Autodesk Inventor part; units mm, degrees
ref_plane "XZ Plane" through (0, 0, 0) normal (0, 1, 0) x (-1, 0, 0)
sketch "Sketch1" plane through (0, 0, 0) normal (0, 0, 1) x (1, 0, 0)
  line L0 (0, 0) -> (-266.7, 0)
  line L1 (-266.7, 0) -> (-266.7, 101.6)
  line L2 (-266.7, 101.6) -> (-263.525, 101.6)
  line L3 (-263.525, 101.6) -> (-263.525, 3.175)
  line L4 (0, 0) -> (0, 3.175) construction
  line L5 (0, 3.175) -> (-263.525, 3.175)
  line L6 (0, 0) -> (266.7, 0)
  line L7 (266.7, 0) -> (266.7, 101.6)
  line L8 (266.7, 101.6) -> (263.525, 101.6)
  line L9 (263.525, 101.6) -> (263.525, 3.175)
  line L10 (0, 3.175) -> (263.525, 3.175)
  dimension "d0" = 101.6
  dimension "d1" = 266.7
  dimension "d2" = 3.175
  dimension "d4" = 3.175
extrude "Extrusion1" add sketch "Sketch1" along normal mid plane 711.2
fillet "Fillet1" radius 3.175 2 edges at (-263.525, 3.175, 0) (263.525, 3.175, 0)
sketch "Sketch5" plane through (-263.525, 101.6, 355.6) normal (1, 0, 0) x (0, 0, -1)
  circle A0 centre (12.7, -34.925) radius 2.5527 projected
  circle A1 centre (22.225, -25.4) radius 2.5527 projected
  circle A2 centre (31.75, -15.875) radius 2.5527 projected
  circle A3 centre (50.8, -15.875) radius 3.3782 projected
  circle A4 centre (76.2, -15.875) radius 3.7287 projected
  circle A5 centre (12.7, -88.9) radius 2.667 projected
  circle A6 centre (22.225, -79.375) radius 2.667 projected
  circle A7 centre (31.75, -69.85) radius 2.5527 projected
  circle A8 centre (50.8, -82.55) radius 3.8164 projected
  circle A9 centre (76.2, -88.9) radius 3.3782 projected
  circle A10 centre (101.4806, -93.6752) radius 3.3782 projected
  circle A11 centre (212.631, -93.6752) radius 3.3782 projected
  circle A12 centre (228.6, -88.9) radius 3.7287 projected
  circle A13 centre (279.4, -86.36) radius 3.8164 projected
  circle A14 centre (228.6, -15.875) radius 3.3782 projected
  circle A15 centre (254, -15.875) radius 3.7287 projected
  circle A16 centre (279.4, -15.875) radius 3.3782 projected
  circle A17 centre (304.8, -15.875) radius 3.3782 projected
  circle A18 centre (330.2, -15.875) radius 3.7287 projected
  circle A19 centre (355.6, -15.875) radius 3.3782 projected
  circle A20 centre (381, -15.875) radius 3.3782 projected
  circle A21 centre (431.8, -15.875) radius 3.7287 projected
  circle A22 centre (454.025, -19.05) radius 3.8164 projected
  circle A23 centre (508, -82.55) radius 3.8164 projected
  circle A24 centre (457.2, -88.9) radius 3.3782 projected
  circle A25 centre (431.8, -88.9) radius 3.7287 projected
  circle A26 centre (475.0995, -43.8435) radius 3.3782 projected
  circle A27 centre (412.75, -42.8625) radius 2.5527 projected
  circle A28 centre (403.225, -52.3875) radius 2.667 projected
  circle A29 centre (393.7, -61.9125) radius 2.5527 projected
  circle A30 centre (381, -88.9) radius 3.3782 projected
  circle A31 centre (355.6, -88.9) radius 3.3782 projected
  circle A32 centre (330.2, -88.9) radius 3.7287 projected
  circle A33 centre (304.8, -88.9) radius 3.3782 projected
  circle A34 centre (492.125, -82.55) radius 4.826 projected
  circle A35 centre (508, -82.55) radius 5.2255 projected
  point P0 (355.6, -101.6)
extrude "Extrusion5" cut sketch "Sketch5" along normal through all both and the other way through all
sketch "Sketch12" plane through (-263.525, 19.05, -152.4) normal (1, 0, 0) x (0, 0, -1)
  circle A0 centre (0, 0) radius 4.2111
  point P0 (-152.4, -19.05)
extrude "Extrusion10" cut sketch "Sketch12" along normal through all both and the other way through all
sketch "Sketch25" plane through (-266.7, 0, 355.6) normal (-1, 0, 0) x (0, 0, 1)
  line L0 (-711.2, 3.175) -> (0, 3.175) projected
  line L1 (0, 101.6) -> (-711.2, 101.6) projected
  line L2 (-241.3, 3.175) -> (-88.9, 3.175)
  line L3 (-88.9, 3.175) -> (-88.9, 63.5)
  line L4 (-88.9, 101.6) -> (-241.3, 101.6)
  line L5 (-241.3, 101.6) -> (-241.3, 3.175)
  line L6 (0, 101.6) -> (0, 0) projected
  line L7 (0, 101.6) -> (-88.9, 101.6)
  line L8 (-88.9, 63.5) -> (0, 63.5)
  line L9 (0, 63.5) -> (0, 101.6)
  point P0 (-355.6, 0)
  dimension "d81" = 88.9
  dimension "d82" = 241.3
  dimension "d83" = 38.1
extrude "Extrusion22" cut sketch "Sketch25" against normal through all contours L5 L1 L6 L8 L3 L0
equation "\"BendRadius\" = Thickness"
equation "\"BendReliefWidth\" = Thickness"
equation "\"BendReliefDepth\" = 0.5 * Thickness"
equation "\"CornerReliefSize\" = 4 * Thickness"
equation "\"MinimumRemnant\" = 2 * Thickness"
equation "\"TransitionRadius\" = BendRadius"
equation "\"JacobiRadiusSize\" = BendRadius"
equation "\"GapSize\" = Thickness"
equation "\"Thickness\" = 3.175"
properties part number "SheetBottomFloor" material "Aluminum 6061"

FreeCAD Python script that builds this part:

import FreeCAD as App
import Part
import Sketcher

V = App.Vector
Q = App.Units.Quantity


def edges_at(feature, points):
    """Names of the edges that pass closest to the given points."""
    edges = feature.Shape.Edges
    near = lambda p: min(range(len(edges)), key=lambda i: edges[i].distToShape(Part.Vertex(*p))[0])
    return sorted({f"Edge{near(p) + 1}" for p in points})


def add_polygon(sketch, points):
    """Adds a closed chain of lines whose ends are joined by coincident constraints."""
    first, n = sketch.GeometryCount, len(points)
    for a, b in zip(points, points[1:] + points[:1]):
        sketch.addGeometry(Part.LineSegment(App.Vector(*a, 0), App.Vector(*b, 0)), False)
    for i in range(n):
        sketch.addConstraint(Sketcher.Constraint("Coincident", first + i, 2, first + (i + 1) % n, 1))

doc = App.newDocument("Part")
params = doc.addObject("Spreadsheet::Sheet", "Params")
for row, (alias, value) in enumerate([
    ("sketch1_height", "4 in"),
    ("sketch1_width", "0.125 in"),
    ("pad1_length", "28 in"),
    ("fillet_radius", "0.125 in"),
    ("sketch2_diameter", "0.21 in"),
    ("sketch2_diameter2", "0.38 in"),
    ("sketch2_diameter3", "0.201 in"),
    ("sketch2_diameter4", "0.266 in"),
    ("sketch4_width", "1.5 in"),
    ("sketch4_height", "3.5 in"),
    ("sketch4_height2", "9.5 in"),
    ("sketch4_width2", "3.875 in"),
], start=1):
    params.set(f"A{row}", alias)
    params.set(f"B{row}", "=" + value)
    params.setAlias(f"B{row}", alias)

body = doc.addObject("PartDesign::Body", "Body")
body.AllowCompound = True

sketch1 = doc.addObject("Sketcher::SketchObject", "Sketch")
body.addObject(sketch1)
sketch1.AttachmentSupport = (doc.XY_Plane, [""])
sketch1.MapMode = "FlatFace"
add_polygon(sketch1, [(-266.7, 0), (266.7, 0), (266.7, 101.6), (263.5, 101.6), (263.5, 3.2), (-263.5, 3.2), (-263.5, 101.6), (-266.7, 101.6)])
sketch1.addConstraint([
    Sketcher.Constraint("Horizontal", 0),
    Sketcher.Constraint("Vertical", 1),
    Sketcher.Constraint("Horizontal", 2),
    Sketcher.Constraint("Vertical", 3),
    Sketcher.Constraint("Horizontal", 4),
    Sketcher.Constraint("Vertical", 5),
    Sketcher.Constraint("Horizontal", 6),
    Sketcher.Constraint("Vertical", 7),
    Sketcher.Constraint("Symmetric", 0, 2, 7, 2, -1, 1),
    Sketcher.Constraint("Symmetric", 2, 2, 5, 2, -2),
    Sketcher.Constraint("DistanceY", 1, 1, 1, 2, Q("4 in")),
    Sketcher.Constraint("DistanceX", -1, 1, 0, 2, Q("10.5 in")),
    Sketcher.Constraint("DistanceX", 2, 2, 2, 1, Q("0.125 in")),
    Sketcher.Constraint("DistanceY", -1, 1, 3, 2, Q("0.125 in")),
])
sketch1.setExpression("Constraints[18]", "Params.sketch1_height")
sketch1.setExpression("Constraints[20]", "Params.sketch1_width")
pad1 = doc.addObject("PartDesign::Pad", "Pad")
body.addObject(pad1)
pad1.Profile = sketch1
pad1.setExpression("Length", "Params.pad1_length")
pad1.Midplane = True
doc.recompute()

fillet = doc.addObject("PartDesign::Fillet", "Fillet")
body.addObject(fillet)
fillet.Base = (pad1, edges_at(pad1, [(-263.525, 3.175, 0), (263.525, 3.175, 0)]))
fillet.setExpression("Radius", "Params.fillet_radius")

sketch2 = doc.addObject("Sketcher::SketchObject", "Sketch001")
body.addObject(sketch2)
sketch2.AttachmentSupport = (doc.YZ_Plane, [""])
sketch2.MapMode = "FlatFace"
sketch2.AttachmentOffset = App.Placement(V(0, 0, -10.375 * 25.4), App.Rotation())
sketch2.addGeometry([
    Part.Circle(V(66.7, 342.9, 0), V(0, 0, 1), 2.6),
    Part.Circle(V(76.2, 333.4, 0), V(0, 0, 1), 2.6),
    Part.Circle(V(85.7, 323.9, 0), V(0, 0, 1), 2.6),
    Part.Circle(V(85.7, 304.8, 0), V(0, 0, 1), 3.4),
    Part.Circle(V(85.7, 279.4, 0), V(0, 0, 1), 3.7),
    Part.Circle(V(12.7, 342.9, 0), V(0, 0, 1), 2.7),
    Part.Circle(V(22.2, 333.4, 0), V(0, 0, 1), 2.7),
    Part.Circle(V(31.8, 323.9, 0), V(0, 0, 1), 2.6),
    Part.Circle(V(19.1, 304.8, 0), V(0, 0, 1), 3.8),
    Part.Circle(V(12.7, 279.4, 0), V(0, 0, 1), 3.4),
    Part.Circle(V(7.9, 254.1, 0), V(0, 0, 1), 3.4),
    Part.Circle(V(7.9, 143, 0), V(0, 0, 1), 3.4),
    Part.Circle(V(12.7, 127, 0), V(0, 0, 1), 3.7),
    Part.Circle(V(15.2, 76.2, 0), V(0, 0, 1), 3.8),
    Part.Circle(V(85.7, 127, 0), V(0, 0, 1), 3.4),
    Part.Circle(V(85.7, 101.6, 0), V(0, 0, 1), 3.7),
    Part.Circle(V(85.7, 76.2, 0), V(0, 0, 1), 3.4),
    Part.Circle(V(85.7, 50.8, 0), V(0, 0, 1), 3.4),
    Part.Circle(V(85.7, 25.4, 0), V(0, 0, 1), 3.7),
    Part.Circle(V(85.7, 0, 0), V(0, 0, 1), 3.4),
    Part.Circle(V(85.7, -25.4, 0), V(0, 0, 1), 3.4),
    Part.Circle(V(85.7, -76.2, 0), V(0, 0, 1), 3.7),
    Part.Circle(V(82.5, -98.4, 0), V(0, 0, 1), 3.8),
    Part.Circle(V(12.7, -101.6, 0), V(0, 0, 1), 3.4),
    Part.Circle(V(12.7, -76.2, 0), V(0, 0, 1), 3.7),
    Part.Circle(V(57.8, -119.5, 0), V(0, 0, 1), 3.4),
    Part.Circle(V(58.7, -57.1, 0), V(0, 0, 1), 2.6),
    Part.Circle(V(49.2, -47.6, 0), V(0, 0, 1), 2.7),
    Part.Circle(V(39.7, -38.1, 0), V(0, 0, 1), 2.6),
    Part.Circle(V(12.7, -25.4, 0), V(0, 0, 1), 3.4),
    Part.Circle(V(12.7, 0, 0), V(0, 0, 1), 3.4),
    Part.Circle(V(12.7, 25.4, 0), V(0, 0, 1), 3.7),
    Part.Circle(V(12.7, 50.8, 0), V(0, 0, 1), 3.4),
    Part.Circle(V(19.1, -136.5, 0), V(0, 0, 1), 4.8),
    Part.Circle(V(19.1, -152.4, 0), V(0, 0, 1), 5.2),
    Part.Circle(V(19.1, -152.4, 0), V(0, 0, 1), 3.8),
], False)
sketch2.addConstraint([
    Sketcher.Constraint("Coincident", 35, 3, 34, 3),
    Sketcher.Constraint("Equal", 0, 1),
    Sketcher.Constraint("Equal", 1, 2),
    Sketcher.Constraint("Equal", 5, 6),
    Sketcher.Constraint("Equal", 2, 7),
    Sketcher.Constraint("Equal", 3, 9),
    Sketcher.Constraint("Equal", 9, 10),
    Sketcher.Constraint("Equal", 10, 11),
    Sketcher.Constraint("Equal", 4, 12),
    Sketcher.Constraint("Equal", 8, 13),
    Sketcher.Constraint("Equal", 11, 14),
    Sketcher.Constraint("Equal", 12, 15),
    Sketcher.Constraint("Equal", 14, 16),
    Sketcher.Constraint("Equal", 16, 17),
    Sketcher.Constraint("Equal", 15, 18),
    Sketcher.Constraint("Equal", 17, 19),
    Sketcher.Constraint("Equal", 19, 20),
    Sketcher.Constraint("Equal", 18, 21),
    Sketcher.Constraint("Equal", 13, 22),
    Sketcher.Constraint("Equal", 20, 23),
    Sketcher.Constraint("Equal", 21, 24),
    Sketcher.Constraint("Equal", 23, 25),
    Sketcher.Constraint("Equal", 7, 26),
    Sketcher.Constraint("Equal", 6, 27),
    Sketcher.Constraint("Equal", 26, 28),
    Sketcher.Constraint("Equal", 25, 29),
    Sketcher.Constraint("Equal", 29, 30),
    Sketcher.Constraint("Equal", 24, 31),
    Sketcher.Constraint("Equal", 30, 32),
    Sketcher.Constraint("Equal", 22, 35),
    Sketcher.Constraint("Symmetric", 18, 3, 20, 3, -1),
    Sketcher.Constraint("Symmetric", 16, 3, 21, 3, -1),
    Sketcher.Constraint("Symmetric", 29, 3, 31, 3, -1),
    Sketcher.Constraint("PointOnObject", 19, 3, -1),
    Sketcher.Constraint("PointOnObject", 30, 3, -1),
    Sketcher.Constraint("Horizontal", 0, 3, 5, 3),
    Sketcher.Constraint("Horizontal", 1, 3, 6, 3),
    Sketcher.Constraint("Horizontal", 2, 3, 7, 3),
    Sketcher.Constraint("Horizontal", 3, 3, 8, 3),
    Sketcher.Constraint("Horizontal", 4, 3, 9, 3),
    Sketcher.Constraint("Horizontal", 12, 3, 14, 3),
    Sketcher.Constraint("Horizontal", 13, 3, 16, 3),
    Sketcher.Constraint("Horizontal", 21, 3, 24, 3),
    Sketcher.Constraint("Horizontal", 20, 3, 29, 3),
    Sketcher.Constraint("Horizontal", 17, 3, 32, 3),
    Sketcher.Constraint("Vertical", 2, 3, 3, 3),
    Sketcher.Constraint("Vertical", 3, 3, 4, 3),
    Sketcher.Constraint("Vertical", 5, 3, 9, 3),
    Sketcher.Constraint("Vertical", 10, 3, 11, 3),
    Sketcher.Constraint("Vertical", 9, 3, 12, 3),
    Sketcher.Constraint("Vertical", 4, 3, 14, 3),
    Sketcher.Constraint("Vertical", 14, 3, 15, 3),
    Sketcher.Constraint("Vertical", 15, 3, 16, 3),
    Sketcher.Constraint("Vertical", 16, 3, 17, 3),
    Sketcher.Constraint("Vertical", 17, 3, 18, 3),
    Sketcher.Constraint("Vertical", 18, 3, 19, 3),
    Sketcher.Constraint("Vertical", 12, 3, 23, 3),
    Sketcher.Constraint("Vertical", 23, 3, 24, 3),
    Sketcher.Constraint("Vertical", 24, 3, 29, 3),
    Sketcher.Constraint("Vertical", 29, 3, 30, 3),
    Sketcher.Constraint("Vertical", 31, 3, 32, 3),
    Sketcher.Constraint("Vertical", 8, 3, 33, 3),
    Sketcher.Constraint("Vertical", 33, 3, 34, 3),
    Sketcher.Constraint("Diameter", 5, Q("0.21 in")),
    Sketcher.Constraint("Diameter", 33, Q("0.38 in")),
    Sketcher.Constraint("Diameter", 0, Q("0.201 in")),
    Sketcher.Constraint("Diameter", 3, Q("0.266 in")),
    Sketcher.Constraint("DistanceX", -1, 1, 1, 3, Q("3 in")),
    Sketcher.Constraint("DistanceY", -1, 1, 3, 3, Q("12 in")),
    Sketcher.Constraint("DistanceY", -1, 1, 4, 3, Q("11 in")),
    Sketcher.Constraint("DistanceY", -1, 1, 12, 3, Q("5 in")),
    Sketcher.Constraint("DistanceY", -1, 1, 13, 3, Q("3 in")),
    Sketcher.Constraint("DistanceY", -1, 1, 15, 3, Q("4 in")),
    Sketcher.Constraint("DistanceY", -1, 1, 17, 3, Q("2 in")),
    Sketcher.Constraint("DistanceY", -1, 1, 18, 3, Q("1 in")),
    Sketcher.Constraint("DistanceY", 23, 3, -1, 1, Q("4 in")),
    Sketcher.Constraint("DistanceY", 34, 3, -1, 1, Q("6 in")),
    Sketcher.Constraint("Diameter", 4, Q("0.2936 in")),
    Sketcher.Constraint("Diameter", 8, Q("0.3005 in")),
    Sketcher.Constraint("DistanceY", -1, 1, 0, 3, Q("13.5 in")),
    Sketcher.Constraint("DistanceX", -1, 1, 5, 3, Q("0.5 in")),
    Sketcher.Constraint("DistanceX", -1, 1, 13, 3, Q("0.6 in")),
    Sketcher.Constraint("DistanceY", 28, 3, -1, 1, Q("1.5 in")),
    Sketcher.Constraint("DistanceX", 6, 3, 2, 3, Q("2.5 in")),
    Sketcher.Constraint("DistanceX", 8, 3, 7, 3, Q("0.5 in")),
    Sketcher.Constraint("DistanceX", 33, 3, 22, 3, Q("2.5 in")),
    Sketcher.Constraint("DistanceY", 33, 3, 22, 3, Q("1.5 in")),
    Sketcher.Constraint("Diameter", 34, 10.451),
    Sketcher.Constraint("DistanceY", -1, 1, 2, 3, Q("12.75 in")),
    Sketcher.Constraint("DistanceX", -1, 1, 7, 3, Q("1.25 in")),
    Sketcher.Constraint("DistanceY", 26, 3, -1, 1, Q("2.25 in")),
    Sketcher.Constraint("DistanceX", 0, 3, 2, 3, Q("0.75 in")),
    Sketcher.Constraint("DistanceX", 28, 3, 26, 3, Q("0.75 in")),
    Sketcher.Constraint("DistanceX", -1, 1, 0, 3, Q("2.625 in")),
    Sketcher.Constraint("DistanceY", -1, 1, 1, 3, Q("13.125 in")),
    Sketcher.Constraint("DistanceX", -1, 1, 10, 3, Q("0.312 in")),
    Sketcher.Constraint("DistanceY", 22, 3, -1, 1, Q("3.875 in")),
    Sketcher.Constraint("DistanceX", -1, 1, 26, 3, Q("2.3125 in")),
    Sketcher.Constraint("DistanceX", -1, 1, 27, 3, Q("1.9375 in")),
    Sketcher.Constraint("DistanceY", 27, 3, -1, 1, Q("1.875 in")),
    Sketcher.Constraint("DistanceY", 11, 3, 10, 3, Q("4.376 in")),
    Sketcher.Constraint("DistanceY", -1, 1, 10, 3, Q("10.0047 in")),
    Sketcher.Constraint("DistanceY", 25, 3, -1, 1, Q("4.7047 in")),
    Sketcher.Constraint("DistanceX", -1, 1, 25, 3, 57.7565),
])
sketch2.setExpression("Constraints[63]", "Params.sketch2_diameter")
sketch2.setExpression("Constraints[64]", "Params.sketch2_diameter2")
sketch2.setExpression("Constraints[65]", "Params.sketch2_diameter3")
sketch2.setExpression("Constraints[66]", "Params.sketch2_diameter4")
pocket1 = doc.addObject("PartDesign::Pocket", "Pocket")
body.addObject(pocket1)
pocket1.Profile = sketch2
pocket1.Type = "ThroughAll"
pocket1.Midplane = True

sketch3 = doc.addObject("Sketcher::SketchObject", "Sketch002")
body.addObject(sketch3)
sketch3.AttachmentSupport = (doc.YZ_Plane, [""])
sketch3.MapMode = "FlatFace"
sketch3.AttachmentOffset = App.Placement(V(0, 0, -10.375 * 25.4), App.Rotation())
sketch3.addGeometry(Part.Circle(V(19.1, -152.4, 0), V(0, 0, 1), 4.2), False)
sketch3.addConstraint([
    Sketcher.Constraint("DistanceY", 0, 3, -1, 1, Q("6 in")),
    Sketcher.Constraint("Diameter", 0, 8.4222),
    Sketcher.Constraint("DistanceX", -1, 1, 0, 3, Q("0.75 in")),
])
pocket2 = doc.addObject("PartDesign::Pocket", "Pocket001")
body.addObject(pocket2)
pocket2.Profile = sketch3
pocket2.Type = "ThroughAll"
pocket2.Midplane = True

sketch4 = doc.addObject("Sketcher::SketchObject", "Sketch003")
body.addObject(sketch4)
sketch4.AttachmentSupport = (doc.YZ_Plane, [""])
sketch4.MapMode = "FlatFace"
sketch4.AttachmentOffset = App.Placement(V(0, 0, -10.5 * 25.4), App.Rotation())
add_polygon(sketch4, [(102, 114), (3, 114), (3, 267), (64, 267), (64, 356), (102, 356)])
sketch4.addConstraint([
    Sketcher.Constraint("Horizontal", 0),
    Sketcher.Constraint("Vertical", 1),
    Sketcher.Constraint("Horizontal", 2),
    Sketcher.Constraint("Vertical", 3),
    Sketcher.Constraint("Horizontal", 4),
    Sketcher.Constraint("Vertical", 5),
    Sketcher.Constraint("DistanceX", 4, 1, 4, 2, Q("1.5 in")),
    Sketcher.Constraint("DistanceY", 3, 1, 3, 2, Q("3.5 in")),
    Sketcher.Constraint("DistanceY", 5, 2, 5, 1, Q("9.5 in")),
    Sketcher.Constraint("DistanceY", -1, 1, 3, 2, Q("14 in")),
    Sketcher.Constraint("DistanceX", -1, 1, 4, 2, Q("4 in")),
    Sketcher.Constraint("DistanceX", 0, 2, 0, 1, Q("3.875 in")),
])
sketch4.setExpression("Constraints[12]", "Params.sketch4_width")
sketch4.setExpression("Constraints[13]", "Params.sketch4_height")
sketch4.setExpression("Constraints[14]", "Params.sketch4_height2")
sketch4.setExpression("Constraints[17]", "Params.sketch4_width2")
pocket3 = doc.addObject("PartDesign::Pocket", "Pocket002")
body.addObject(pocket3)
pocket3.Profile = sketch4
pocket3.Type = "ThroughAll"
pocket3.Reversed = True

doc.recompute()
